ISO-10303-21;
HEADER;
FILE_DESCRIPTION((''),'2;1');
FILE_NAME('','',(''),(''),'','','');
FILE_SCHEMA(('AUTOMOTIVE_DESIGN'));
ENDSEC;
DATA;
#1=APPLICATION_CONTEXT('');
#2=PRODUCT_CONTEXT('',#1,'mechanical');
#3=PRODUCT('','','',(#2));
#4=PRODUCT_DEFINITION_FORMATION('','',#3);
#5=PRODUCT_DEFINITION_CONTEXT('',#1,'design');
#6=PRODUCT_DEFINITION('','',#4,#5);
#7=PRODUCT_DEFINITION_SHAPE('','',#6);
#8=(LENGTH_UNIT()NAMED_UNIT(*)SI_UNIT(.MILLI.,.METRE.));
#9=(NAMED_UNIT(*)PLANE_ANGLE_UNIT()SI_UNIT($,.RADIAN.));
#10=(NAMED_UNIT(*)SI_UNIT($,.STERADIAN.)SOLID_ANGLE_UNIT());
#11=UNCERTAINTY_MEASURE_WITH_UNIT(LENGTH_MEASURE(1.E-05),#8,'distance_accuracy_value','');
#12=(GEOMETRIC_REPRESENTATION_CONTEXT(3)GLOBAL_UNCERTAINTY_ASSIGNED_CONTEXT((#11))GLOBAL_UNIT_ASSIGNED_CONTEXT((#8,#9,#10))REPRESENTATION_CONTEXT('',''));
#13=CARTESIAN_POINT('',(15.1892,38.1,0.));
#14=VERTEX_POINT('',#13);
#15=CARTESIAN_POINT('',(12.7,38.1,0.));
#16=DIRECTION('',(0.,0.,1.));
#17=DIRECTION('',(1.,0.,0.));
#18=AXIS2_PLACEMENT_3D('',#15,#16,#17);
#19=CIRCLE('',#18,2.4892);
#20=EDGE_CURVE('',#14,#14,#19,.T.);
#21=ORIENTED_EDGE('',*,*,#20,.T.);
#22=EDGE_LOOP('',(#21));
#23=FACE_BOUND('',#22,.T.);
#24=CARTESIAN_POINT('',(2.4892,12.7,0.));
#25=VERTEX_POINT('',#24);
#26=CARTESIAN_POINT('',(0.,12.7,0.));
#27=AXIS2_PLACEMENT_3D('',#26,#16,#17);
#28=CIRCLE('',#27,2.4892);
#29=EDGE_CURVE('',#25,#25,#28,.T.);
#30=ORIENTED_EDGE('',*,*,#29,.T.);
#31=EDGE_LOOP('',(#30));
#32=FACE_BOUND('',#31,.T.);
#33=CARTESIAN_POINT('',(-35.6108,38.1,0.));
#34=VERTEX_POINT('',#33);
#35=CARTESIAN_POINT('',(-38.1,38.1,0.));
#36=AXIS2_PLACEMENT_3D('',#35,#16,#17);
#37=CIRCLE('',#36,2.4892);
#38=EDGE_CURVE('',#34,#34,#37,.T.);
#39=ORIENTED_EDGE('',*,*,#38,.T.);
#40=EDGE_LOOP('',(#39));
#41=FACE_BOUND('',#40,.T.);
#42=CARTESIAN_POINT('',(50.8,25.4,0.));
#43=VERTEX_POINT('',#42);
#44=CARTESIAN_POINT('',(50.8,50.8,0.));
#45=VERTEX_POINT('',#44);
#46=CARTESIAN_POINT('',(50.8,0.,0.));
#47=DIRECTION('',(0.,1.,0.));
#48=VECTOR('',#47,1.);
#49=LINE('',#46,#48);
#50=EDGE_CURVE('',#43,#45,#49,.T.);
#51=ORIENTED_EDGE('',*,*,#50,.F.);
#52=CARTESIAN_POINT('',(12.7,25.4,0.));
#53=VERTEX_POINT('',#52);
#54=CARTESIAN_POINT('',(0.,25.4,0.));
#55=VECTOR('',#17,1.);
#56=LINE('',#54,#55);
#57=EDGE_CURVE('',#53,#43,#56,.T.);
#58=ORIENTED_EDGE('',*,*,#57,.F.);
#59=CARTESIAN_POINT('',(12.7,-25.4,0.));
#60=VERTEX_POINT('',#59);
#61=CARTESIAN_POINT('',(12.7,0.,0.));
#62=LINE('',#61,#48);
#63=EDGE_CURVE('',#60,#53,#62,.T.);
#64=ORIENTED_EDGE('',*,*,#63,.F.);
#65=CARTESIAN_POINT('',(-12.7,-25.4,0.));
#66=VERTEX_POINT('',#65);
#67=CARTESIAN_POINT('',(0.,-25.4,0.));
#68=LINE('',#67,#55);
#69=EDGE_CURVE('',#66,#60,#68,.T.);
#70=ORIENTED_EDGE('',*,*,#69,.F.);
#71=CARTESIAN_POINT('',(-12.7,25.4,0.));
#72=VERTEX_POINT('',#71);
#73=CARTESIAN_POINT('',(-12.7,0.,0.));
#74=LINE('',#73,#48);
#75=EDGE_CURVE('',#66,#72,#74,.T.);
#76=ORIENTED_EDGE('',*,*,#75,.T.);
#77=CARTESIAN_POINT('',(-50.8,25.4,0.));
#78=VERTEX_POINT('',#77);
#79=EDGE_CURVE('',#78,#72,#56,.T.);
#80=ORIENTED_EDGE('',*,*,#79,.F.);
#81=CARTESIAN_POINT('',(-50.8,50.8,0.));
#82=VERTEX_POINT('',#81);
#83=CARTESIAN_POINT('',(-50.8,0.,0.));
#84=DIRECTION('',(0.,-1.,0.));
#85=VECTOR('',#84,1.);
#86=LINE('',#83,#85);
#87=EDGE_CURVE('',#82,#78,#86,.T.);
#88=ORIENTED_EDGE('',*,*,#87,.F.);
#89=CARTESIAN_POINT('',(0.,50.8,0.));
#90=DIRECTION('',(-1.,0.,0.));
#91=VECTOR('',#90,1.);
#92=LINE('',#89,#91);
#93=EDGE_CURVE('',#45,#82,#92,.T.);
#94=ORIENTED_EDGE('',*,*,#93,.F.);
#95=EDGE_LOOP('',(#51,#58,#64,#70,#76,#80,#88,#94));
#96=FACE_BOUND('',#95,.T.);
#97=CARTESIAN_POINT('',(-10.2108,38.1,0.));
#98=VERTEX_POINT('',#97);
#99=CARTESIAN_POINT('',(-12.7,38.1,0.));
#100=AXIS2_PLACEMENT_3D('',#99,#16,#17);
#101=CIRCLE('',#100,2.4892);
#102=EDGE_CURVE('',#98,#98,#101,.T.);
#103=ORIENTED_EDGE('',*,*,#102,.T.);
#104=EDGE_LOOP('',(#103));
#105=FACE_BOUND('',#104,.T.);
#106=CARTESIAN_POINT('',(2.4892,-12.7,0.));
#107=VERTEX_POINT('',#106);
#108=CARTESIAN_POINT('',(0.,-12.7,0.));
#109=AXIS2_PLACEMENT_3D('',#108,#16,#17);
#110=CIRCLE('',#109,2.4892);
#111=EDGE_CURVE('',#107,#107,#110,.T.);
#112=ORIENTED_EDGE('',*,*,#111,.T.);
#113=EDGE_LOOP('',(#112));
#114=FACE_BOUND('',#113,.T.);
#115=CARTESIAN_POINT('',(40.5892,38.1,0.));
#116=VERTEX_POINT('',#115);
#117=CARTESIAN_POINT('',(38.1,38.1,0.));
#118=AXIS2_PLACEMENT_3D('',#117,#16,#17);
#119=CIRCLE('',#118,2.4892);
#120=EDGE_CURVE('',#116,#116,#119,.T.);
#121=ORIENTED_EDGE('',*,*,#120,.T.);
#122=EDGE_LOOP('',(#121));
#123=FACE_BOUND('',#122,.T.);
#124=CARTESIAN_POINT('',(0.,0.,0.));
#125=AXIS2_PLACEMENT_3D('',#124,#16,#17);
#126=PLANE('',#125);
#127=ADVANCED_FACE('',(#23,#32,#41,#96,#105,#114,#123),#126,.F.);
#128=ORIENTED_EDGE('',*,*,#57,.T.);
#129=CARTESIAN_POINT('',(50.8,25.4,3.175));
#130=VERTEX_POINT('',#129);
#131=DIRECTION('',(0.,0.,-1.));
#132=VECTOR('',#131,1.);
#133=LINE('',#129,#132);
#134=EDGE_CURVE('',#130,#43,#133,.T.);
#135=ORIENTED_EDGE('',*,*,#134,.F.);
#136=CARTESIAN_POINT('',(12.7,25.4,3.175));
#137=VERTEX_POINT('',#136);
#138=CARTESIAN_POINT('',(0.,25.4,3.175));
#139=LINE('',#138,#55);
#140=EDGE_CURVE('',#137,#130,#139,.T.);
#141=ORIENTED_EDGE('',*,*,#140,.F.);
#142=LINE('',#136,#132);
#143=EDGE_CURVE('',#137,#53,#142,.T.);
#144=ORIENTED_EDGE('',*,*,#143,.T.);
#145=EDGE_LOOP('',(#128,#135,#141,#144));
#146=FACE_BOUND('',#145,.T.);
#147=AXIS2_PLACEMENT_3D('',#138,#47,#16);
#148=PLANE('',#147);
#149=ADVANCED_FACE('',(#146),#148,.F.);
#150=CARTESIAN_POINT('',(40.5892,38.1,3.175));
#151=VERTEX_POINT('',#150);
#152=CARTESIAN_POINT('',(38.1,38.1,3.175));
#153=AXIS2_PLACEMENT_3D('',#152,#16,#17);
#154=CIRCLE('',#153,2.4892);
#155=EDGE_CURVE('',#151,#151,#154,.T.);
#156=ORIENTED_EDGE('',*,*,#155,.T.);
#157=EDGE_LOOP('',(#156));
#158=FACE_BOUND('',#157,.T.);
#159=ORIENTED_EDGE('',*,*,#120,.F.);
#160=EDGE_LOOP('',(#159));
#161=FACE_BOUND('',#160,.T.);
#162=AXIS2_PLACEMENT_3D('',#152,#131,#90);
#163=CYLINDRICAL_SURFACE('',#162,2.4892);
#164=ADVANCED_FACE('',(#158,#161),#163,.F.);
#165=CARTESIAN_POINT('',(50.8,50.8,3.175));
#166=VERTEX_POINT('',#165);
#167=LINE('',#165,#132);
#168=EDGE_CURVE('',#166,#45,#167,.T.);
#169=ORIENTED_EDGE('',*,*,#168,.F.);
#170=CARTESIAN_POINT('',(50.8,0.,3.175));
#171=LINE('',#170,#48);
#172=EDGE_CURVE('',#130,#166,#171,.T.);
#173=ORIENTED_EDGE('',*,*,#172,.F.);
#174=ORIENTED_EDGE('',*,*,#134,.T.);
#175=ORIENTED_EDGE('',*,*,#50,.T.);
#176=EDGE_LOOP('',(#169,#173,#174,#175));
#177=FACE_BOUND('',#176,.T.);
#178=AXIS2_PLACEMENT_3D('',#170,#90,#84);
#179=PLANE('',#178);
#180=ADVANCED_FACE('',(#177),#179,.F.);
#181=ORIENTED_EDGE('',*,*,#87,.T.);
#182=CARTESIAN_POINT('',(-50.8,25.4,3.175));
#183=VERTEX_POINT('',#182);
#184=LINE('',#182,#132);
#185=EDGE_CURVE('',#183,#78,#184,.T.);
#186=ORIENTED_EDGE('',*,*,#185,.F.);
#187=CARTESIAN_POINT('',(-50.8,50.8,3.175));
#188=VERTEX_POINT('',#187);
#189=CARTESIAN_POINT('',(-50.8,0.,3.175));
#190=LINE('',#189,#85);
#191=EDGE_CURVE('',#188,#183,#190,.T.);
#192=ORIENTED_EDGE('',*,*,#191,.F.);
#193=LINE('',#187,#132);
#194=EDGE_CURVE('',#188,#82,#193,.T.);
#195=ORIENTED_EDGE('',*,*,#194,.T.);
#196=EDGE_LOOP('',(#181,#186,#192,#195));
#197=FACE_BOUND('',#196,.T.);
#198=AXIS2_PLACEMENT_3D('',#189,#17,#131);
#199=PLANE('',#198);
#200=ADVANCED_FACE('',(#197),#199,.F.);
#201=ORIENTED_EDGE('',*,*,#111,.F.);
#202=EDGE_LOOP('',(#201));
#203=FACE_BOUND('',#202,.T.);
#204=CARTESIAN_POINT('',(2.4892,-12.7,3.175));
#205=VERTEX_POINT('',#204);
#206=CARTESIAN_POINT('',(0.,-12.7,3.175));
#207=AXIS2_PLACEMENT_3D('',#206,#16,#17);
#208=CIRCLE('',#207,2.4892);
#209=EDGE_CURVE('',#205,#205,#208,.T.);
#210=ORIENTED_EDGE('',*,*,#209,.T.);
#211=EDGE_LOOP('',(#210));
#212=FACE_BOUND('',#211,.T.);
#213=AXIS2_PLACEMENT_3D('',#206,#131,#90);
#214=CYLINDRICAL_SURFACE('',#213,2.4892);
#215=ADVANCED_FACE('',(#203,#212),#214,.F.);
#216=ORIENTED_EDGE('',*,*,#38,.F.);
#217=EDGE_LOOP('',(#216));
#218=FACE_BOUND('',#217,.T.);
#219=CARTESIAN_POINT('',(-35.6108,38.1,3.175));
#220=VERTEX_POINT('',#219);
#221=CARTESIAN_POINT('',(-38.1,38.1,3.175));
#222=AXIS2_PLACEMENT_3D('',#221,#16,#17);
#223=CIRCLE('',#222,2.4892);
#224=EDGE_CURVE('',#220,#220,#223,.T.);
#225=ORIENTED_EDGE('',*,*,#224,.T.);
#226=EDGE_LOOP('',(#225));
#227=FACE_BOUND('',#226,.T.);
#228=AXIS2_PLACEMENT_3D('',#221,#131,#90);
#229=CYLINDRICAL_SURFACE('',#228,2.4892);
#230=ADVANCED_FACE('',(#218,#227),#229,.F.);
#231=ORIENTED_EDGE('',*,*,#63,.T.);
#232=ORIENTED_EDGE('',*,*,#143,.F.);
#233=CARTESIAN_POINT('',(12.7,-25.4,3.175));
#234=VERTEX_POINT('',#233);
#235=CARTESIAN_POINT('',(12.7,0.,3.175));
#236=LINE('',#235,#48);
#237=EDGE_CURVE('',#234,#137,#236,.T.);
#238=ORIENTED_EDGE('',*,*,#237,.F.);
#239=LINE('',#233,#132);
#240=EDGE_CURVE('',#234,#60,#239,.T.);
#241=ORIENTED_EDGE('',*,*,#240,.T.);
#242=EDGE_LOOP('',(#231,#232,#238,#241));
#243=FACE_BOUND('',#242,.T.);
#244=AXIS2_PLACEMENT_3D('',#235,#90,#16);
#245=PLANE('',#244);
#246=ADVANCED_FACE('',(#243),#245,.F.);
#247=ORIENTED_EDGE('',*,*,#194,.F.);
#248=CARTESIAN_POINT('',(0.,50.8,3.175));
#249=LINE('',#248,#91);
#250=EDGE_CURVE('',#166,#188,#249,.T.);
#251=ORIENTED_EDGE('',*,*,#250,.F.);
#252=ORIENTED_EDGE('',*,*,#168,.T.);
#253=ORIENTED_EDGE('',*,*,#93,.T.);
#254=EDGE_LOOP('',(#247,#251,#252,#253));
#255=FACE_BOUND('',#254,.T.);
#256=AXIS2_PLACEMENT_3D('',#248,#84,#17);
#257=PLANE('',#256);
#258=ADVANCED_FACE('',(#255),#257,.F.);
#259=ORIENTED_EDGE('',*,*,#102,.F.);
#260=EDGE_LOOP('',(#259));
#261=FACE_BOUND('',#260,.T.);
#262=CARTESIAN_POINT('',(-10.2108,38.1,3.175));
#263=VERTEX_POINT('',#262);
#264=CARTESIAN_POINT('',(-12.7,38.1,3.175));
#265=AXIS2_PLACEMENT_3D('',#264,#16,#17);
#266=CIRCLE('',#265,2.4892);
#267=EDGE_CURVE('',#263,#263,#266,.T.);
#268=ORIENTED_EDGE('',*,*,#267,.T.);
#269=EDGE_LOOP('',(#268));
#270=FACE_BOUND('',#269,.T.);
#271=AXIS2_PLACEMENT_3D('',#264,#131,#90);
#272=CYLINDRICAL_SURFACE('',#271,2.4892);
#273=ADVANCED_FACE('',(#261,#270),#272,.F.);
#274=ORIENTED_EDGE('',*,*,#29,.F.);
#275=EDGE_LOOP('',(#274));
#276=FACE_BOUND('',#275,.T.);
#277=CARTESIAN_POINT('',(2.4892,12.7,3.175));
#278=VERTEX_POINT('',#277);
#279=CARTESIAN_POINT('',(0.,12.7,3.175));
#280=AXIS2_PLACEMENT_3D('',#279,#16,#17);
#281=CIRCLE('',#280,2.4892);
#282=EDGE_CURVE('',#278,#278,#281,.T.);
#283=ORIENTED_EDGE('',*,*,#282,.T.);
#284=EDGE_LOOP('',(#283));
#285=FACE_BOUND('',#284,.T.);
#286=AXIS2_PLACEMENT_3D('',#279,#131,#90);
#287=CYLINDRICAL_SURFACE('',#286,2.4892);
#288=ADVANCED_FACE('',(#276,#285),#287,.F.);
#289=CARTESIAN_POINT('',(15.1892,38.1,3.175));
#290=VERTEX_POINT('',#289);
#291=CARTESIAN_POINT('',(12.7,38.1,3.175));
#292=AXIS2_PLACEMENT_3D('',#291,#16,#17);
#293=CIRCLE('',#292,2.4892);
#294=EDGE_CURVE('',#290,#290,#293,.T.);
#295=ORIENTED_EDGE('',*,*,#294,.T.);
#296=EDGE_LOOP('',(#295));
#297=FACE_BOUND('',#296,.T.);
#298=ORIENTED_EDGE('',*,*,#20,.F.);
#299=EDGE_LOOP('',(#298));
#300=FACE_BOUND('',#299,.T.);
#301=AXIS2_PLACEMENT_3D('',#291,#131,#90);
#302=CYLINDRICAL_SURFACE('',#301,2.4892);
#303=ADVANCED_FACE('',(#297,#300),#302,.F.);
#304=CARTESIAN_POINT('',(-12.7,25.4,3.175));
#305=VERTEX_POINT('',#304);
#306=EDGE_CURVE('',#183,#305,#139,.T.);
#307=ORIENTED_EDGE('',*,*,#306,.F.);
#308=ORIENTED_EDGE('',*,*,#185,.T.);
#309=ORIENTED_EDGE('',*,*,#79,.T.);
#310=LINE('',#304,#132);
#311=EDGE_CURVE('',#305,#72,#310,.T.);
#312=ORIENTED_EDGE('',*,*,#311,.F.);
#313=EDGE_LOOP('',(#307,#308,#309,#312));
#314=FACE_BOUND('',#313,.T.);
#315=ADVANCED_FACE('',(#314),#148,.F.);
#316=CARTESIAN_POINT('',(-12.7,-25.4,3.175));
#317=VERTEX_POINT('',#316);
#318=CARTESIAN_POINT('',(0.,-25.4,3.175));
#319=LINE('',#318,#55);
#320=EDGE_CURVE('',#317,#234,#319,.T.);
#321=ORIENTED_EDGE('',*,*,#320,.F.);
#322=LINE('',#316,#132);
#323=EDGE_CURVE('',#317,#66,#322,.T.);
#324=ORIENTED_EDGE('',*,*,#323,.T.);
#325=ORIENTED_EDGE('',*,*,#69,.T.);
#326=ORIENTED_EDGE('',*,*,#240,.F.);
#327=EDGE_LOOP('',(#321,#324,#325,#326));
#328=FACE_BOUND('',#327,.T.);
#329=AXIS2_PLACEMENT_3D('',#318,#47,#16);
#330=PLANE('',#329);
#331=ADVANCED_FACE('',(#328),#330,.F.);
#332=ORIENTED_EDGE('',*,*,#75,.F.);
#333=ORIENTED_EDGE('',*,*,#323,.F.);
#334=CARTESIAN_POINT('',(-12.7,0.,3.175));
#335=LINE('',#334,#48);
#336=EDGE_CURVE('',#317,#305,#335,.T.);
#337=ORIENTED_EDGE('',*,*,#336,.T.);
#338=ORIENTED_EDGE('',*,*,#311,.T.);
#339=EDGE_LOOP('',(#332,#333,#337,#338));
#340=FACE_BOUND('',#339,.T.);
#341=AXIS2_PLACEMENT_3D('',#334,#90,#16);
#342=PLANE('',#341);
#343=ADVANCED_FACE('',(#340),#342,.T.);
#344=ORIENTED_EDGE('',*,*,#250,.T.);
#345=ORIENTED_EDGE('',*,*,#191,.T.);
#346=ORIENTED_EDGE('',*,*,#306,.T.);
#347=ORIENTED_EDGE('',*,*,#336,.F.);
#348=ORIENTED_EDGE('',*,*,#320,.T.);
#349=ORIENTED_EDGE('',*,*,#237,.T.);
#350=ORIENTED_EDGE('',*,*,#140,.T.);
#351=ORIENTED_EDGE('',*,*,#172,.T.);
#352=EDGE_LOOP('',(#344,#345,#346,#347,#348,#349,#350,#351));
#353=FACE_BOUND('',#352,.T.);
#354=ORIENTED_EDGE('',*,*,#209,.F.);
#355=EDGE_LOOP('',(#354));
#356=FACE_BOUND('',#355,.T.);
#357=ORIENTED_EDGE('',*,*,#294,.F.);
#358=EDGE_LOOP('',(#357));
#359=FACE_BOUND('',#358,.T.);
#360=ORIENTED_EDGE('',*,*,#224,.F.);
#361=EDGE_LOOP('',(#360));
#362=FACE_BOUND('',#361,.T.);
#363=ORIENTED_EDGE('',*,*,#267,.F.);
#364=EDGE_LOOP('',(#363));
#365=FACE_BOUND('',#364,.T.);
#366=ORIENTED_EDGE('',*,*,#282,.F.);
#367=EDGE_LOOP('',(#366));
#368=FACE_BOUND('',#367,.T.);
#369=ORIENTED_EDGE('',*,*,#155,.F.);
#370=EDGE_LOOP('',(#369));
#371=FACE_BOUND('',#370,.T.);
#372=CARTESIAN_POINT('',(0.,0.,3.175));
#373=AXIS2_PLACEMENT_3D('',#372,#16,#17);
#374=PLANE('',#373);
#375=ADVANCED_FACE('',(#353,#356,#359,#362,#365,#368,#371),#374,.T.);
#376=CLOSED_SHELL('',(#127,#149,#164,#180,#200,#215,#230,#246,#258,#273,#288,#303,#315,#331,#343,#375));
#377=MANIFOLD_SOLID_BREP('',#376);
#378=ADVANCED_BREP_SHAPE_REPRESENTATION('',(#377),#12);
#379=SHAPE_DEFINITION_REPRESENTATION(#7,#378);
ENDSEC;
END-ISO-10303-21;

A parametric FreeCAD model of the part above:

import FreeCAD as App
import Part
import Sketcher
from FreeCAD import Vector
Q = App.Units.Quantity


def add_polygon(sketch, points):
    """Adds a closed chain of lines whose ends are joined by coincident constraints."""
    first, n = sketch.GeometryCount, len(points)
    for a, b in zip(points, points[1:] + points[:1]):
        sketch.addGeometry(Part.LineSegment(App.Vector(*a, 0), App.Vector(*b, 0)), False)
    for i in range(n):
        sketch.addConstraint(Sketcher.Constraint("Coincident", first + i, 2, first + (i + 1) % n, 1))

doc = App.newDocument("Part")
body = doc.addObject("PartDesign::Body", "Body")

# Sketch on XY plane
sketch1 = body.newObject("Sketcher::SketchObject", "Sketch")
sketch1.AttachmentSupport = (doc.getObject("XY_Plane"), [""])
sketch1.MapMode = "FlatFace"
add_polygon(sketch1, [(-50.8, 50.8), (-50.8, 25.4), (-12.7, 25.4), (-12.7, -25.4), (12.7, -25.4), (12.7, 25.4), (50.8, 25.4), (50.8, 50.8)])  # lines 0-7
sketch1.addGeometry(Part.Circle(Vector(0, -12.7, 0), Vector(0, 0, 1), 2.5), False)  # 8
sketch1.addGeometry(Part.Circle(Vector(0, 12.7, 0), Vector(0, 0, 1), 2.5), False)  # 9
sketch1.addGeometry(Part.Circle(Vector(-38.1, 38.1, 0), Vector(0, 0, 1), 2.5), False)  # 10
sketch1.addGeometry(Part.Circle(Vector(-12.7, 38.1, 0), Vector(0, 0, 1), 2.5), False)  # 11
sketch1.addGeometry(Part.Circle(Vector(12.7, 38.1, 0), Vector(0, 0, 1), 2.5), False)  # 12
sketch1.addGeometry(Part.Circle(Vector(38.1, 38.1, 0), Vector(0, 0, 1), 2.5), False)  # 13
sketch1.addConstraint([
    Sketcher.Constraint("Vertical", 0),
    Sketcher.Constraint("Horizontal", 1),
    Sketcher.Constraint("Vertical", 2),
    Sketcher.Constraint("Horizontal", 3),
    Sketcher.Constraint("Vertical", 4),
    Sketcher.Constraint("Horizontal", 5),
    Sketcher.Constraint("Vertical", 6),
    Sketcher.Constraint("Horizontal", 7),
    Sketcher.Constraint("Equal", 8, 9),
    Sketcher.Constraint("Equal", 9, 10),
    Sketcher.Constraint("Equal", 10, 11),
    Sketcher.Constraint("Equal", 11, 12),
    Sketcher.Constraint("Equal", 12, 13),
    Sketcher.Constraint("Symmetric", 8, 3, 9, 3, -1, 1),
    Sketcher.Constraint("Symmetric", 1, 2, 3, 2, -1, 1),
    Sketcher.Constraint("Symmetric", 11, 3, 12, 3, -2),
    Sketcher.Constraint("Symmetric", 10, 3, 13, 3, -2),
    Sketcher.Constraint("Symmetric", 0, 2, 5, 2, -2),
    Sketcher.Constraint("PointOnObject", 8, 3, -2),
    Sketcher.Constraint("Horizontal", 10, 3, 11, 3),
    Sketcher.Constraint("Vertical", 11, 3, 1, 2),
    Sketcher.Constraint("Equal", 3, 0),
    Sketcher.Constraint("DistanceX", 3, 1, 3, 2, Q("1 in")),
    Sketcher.Constraint("DistanceX", 7, 2, 7, 1, Q("4 in")),
    Sketcher.Constraint("DistanceY", 2, 2, 2, 1, Q("2 in")),
    Sketcher.Constraint("Diameter", 8, Q("0.196 in")),
    Sketcher.Constraint("DistanceY", 8, 3, 9, 3, Q("1 in")),
    Sketcher.Constraint("DistanceY", 9, 3, 10, 3, Q("1 in")),
    Sketcher.Constraint("DistanceX", 10, 3, 11, 3, Q("1 in")),
])
pad1 = body.newObject("PartDesign::Pad", "Pad")
pad1.Profile = sketch1
pad1.Length = Q("0.125 in")

doc.recompute()
